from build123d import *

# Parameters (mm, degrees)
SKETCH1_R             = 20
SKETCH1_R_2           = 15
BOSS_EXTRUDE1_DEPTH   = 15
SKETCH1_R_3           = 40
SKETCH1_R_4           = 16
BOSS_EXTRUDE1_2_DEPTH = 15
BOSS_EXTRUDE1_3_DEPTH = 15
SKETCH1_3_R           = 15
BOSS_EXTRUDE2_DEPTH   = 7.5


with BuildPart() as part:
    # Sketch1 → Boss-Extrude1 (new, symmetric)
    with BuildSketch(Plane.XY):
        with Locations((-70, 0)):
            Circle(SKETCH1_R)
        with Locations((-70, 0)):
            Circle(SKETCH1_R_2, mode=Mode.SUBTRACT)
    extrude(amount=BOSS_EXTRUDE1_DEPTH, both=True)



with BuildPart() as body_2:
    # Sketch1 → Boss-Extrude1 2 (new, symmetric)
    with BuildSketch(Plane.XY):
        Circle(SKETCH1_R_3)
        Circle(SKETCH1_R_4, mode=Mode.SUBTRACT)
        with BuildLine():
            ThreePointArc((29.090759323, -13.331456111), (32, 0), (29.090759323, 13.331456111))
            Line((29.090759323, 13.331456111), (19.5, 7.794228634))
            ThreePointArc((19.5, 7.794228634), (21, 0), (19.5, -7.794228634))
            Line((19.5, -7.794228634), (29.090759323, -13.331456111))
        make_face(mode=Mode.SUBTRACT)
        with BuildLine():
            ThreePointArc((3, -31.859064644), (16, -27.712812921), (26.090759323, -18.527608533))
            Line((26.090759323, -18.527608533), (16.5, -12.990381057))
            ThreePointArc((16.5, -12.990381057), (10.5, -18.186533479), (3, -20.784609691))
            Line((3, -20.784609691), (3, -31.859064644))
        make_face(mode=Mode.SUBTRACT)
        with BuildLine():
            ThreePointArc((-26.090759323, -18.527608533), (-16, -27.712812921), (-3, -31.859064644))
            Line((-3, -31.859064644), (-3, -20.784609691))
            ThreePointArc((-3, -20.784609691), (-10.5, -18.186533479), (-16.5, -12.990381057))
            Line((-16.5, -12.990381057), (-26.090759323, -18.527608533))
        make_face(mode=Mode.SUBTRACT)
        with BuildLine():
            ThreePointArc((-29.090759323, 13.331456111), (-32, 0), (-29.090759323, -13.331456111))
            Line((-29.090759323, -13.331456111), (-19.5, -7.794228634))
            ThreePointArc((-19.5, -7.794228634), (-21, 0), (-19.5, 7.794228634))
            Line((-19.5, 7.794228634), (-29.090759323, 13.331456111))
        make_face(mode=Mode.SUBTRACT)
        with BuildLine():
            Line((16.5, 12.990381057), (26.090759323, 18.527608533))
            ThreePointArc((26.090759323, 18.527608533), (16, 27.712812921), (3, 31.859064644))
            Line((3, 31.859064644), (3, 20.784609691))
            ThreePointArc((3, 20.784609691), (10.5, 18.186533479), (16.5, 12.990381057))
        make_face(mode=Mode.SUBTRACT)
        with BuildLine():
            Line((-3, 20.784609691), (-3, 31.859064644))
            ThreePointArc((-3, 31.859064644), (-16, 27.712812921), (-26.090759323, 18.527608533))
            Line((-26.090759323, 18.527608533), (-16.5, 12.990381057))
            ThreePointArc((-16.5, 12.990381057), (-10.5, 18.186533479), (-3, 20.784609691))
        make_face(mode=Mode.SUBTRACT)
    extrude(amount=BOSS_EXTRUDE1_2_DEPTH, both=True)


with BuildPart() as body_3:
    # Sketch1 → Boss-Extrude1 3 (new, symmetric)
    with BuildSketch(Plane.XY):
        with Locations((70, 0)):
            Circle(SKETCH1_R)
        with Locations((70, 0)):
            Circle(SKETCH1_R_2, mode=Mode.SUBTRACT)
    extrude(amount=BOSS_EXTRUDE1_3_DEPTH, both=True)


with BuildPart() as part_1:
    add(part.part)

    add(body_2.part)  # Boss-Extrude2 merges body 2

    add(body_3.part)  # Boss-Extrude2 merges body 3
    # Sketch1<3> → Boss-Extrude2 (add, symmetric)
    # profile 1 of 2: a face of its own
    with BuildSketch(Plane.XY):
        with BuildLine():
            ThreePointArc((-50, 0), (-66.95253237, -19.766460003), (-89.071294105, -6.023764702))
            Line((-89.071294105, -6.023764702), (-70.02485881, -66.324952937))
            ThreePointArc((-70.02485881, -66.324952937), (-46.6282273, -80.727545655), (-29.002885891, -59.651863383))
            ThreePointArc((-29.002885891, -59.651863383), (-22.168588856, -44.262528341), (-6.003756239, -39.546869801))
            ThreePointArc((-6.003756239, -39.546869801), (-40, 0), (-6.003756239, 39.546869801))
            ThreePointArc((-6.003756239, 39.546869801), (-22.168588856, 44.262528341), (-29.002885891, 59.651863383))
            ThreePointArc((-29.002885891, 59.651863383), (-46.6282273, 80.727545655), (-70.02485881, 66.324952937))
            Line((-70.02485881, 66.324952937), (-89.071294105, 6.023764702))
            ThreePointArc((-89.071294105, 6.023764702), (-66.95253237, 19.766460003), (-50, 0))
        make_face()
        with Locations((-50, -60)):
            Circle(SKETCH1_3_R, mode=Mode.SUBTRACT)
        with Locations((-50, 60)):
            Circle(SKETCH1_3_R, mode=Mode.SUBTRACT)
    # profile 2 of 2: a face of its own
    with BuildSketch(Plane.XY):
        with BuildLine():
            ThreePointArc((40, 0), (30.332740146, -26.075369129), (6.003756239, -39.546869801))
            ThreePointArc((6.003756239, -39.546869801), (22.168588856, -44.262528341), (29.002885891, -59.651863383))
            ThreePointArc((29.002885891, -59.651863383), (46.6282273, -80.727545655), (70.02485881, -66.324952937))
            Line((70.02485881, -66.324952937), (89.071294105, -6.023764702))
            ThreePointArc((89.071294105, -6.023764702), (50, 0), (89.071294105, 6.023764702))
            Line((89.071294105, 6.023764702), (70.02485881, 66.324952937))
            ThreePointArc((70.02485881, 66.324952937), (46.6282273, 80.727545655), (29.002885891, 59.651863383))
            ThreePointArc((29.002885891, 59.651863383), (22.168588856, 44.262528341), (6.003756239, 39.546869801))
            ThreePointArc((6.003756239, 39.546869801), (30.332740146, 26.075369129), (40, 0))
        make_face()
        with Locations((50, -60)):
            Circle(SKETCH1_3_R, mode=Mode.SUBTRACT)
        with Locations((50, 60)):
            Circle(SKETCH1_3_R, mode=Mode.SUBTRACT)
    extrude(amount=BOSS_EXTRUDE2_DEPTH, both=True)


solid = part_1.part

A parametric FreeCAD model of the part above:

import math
import FreeCAD as App
import Part
import Sketcher

V = App.Vector
Q = App.Units.Quantity

doc = App.newDocument("Part")
body = doc.addObject("PartDesign::Body", "Body")

# Sketch on XY plane
sketch1 = body.newObject("Sketcher::SketchObject", "Sketch")
sketch1.AttachmentSupport = (doc.getObject("XY_Plane"), [""])
sketch1.MapMode = "FlatFace"
sketch1.addGeometry([
    Part.Circle(V(-70, 0, 0), V(0, 0, 1), 20),
    Part.Circle(V(-70, 0, 0), V(0, 0, 1), 15),
], False)
sketch1.addConstraint([
    Sketcher.Constraint("Coincident", 1, 3, 0, 3),
    Sketcher.Constraint("PointOnObject", 0, 3, -1),
    Sketcher.Constraint("Diameter", 0, 40.0),
    Sketcher.Constraint("Diameter", 1, 30.0),
    Sketcher.Constraint("DistanceX", 0, 3, -1, 1, 70.0),
])
pad1 = body.newObject("PartDesign::Pad", "Pad")
pad1.Profile = sketch1
pad1.Length = 30
pad1.Midplane = True
body2 = doc.addObject("PartDesign::Body", "Body001")

# Sketch on XY plane
sketch2 = body2.newObject("Sketcher::SketchObject", "Sketch001")
sketch2.AttachmentSupport = (doc.getObject("XY_Plane001"), [""])
sketch2.MapMode = "FlatFace"
sketch2.addGeometry([
    Part.Circle(V(0, 0, 0), V(0, 0, 1), 40),  # 0
    Part.ArcOfCircle(Part.Circle(V(0, 0, 0), V(0, 0, 1), 32), math.radians(-144.620621), math.radians(-95.379379)),  # 1
    Part.LineSegment(V(-26.090759, -18.527609, 0), V(-16.5, -12.990381, 0)),  # 2
    Part.ArcOfCircle(Part.Circle(V(0, 0, 0), V(0, 0, 1), 21), math.radians(-141.786789), math.radians(-98.213211)),  # 3
    Part.LineSegment(V(-3, -20.78461, 0), V(-3, -31.859065, 0)),  # 4
    Part.ArcOfCircle(Part.Circle(V(0, 0, 0), V(0, 0, 1), 32), math.radians(-84.620621), math.radians(-35.379379)),  # 5
    Part.LineSegment(V(3, -31.859065, 0), V(3, -20.78461, 0)),  # 6
    Part.ArcOfCircle(Part.Circle(V(0, 0, 0), V(0, 0, 1), 21), math.radians(-81.786789), math.radians(-38.213211)),  # 7
    Part.LineSegment(V(16.5, -12.990381, 0), V(26.090759, -18.527609, 0)),  # 8
    Part.ArcOfCircle(Part.Circle(V(0, 0, 0), V(0, 0, 1), 32), math.radians(155.379379), math.radians(204.620621)),  # 9
    Part.LineSegment(V(-29.090759, 13.331456, 0), V(-19.5, 7.794229, 0)),  # 10
    Part.ArcOfCircle(Part.Circle(V(0, 0, 0), V(0, 0, 1), 21), math.radians(158.213211), math.radians(201.786789)),  # 11
    Part.LineSegment(V(-19.5, -7.794229, 0), V(-29.090759, -13.331456, 0)),  # 12
    Part.LineSegment(V(-3, 31.859065, 0), V(-3, 20.78461, 0)),  # 13
    Part.ArcOfCircle(Part.Circle(V(0, 0, 0), V(0, 0, 1), 21), math.radians(98.213211), math.radians(141.786789)),  # 14
    Part.LineSegment(V(-16.5, 12.990381, 0), V(-26.090759, 18.527609, 0)),  # 15
    Part.ArcOfCircle(Part.Circle(V(0, 0, 0), V(0, 0, 1), 32), math.radians(95.379379), math.radians(144.620621)),  # 16
    Part.Circle(V(0, 0, 0), V(0, 0, 1), 16),  # 17
    Part.ArcOfCircle(Part.Circle(V(0, 0, 0), V(0, 0, 1), 32), math.radians(-24.620621), math.radians(24.620621)),  # 18
    Part.LineSegment(V(29.090759, -13.331456, 0), V(19.5, -7.794229, 0)),  # 19
    Part.ArcOfCircle(Part.Circle(V(0, 0, 0), V(0, 0, 1), 21), math.radians(-21.786789), math.radians(21.786789)),  # 20
    Part.LineSegment(V(19.5, 7.794229, 0), V(29.090759, 13.331456, 0)),  # 21
    Part.LineSegment(V(26.090759, 18.527609, 0), V(16.5, 12.990381, 0)),  # 22
    Part.ArcOfCircle(Part.Circle(V(0, 0, 0), V(0, 0, 1), 21), math.radians(38.213211), math.radians(81.786789)),  # 23
    Part.LineSegment(V(3, 20.78461, 0), V(3, 31.859065, 0)),  # 24
    Part.ArcOfCircle(Part.Circle(V(0, 0, 0), V(0, 0, 1), 32), math.radians(35.379379), math.radians(84.620621)),  # 25
], False)
sketch2.addConstraint([
    Sketcher.Constraint("Coincident", 1, 1, 2, 1),
    Sketcher.Constraint("Coincident", 2, 2, 3, 1),
    Sketcher.Constraint("Coincident", 3, 2, 4, 1),
    Sketcher.Constraint("Coincident", 4, 2, 1, 2),
    Sketcher.Constraint("Coincident", 5, 1, 6, 1),
    Sketcher.Constraint("Coincident", 6, 2, 7, 1),
    Sketcher.Constraint("Coincident", 7, 2, 8, 1),
    Sketcher.Constraint("Coincident", 8, 2, 5, 2),
    Sketcher.Constraint("Coincident", 9, 1, 10, 1),
    Sketcher.Constraint("Coincident", 10, 2, 11, 1),
    Sketcher.Constraint("Coincident", 11, 2, 12, 1),
    Sketcher.Constraint("Coincident", 12, 2, 9, 2),
    Sketcher.Constraint("Coincident", 13, 2, 14, 1),
    Sketcher.Constraint("Coincident", 14, 2, 15, 1),
    Sketcher.Constraint("Coincident", 15, 2, 16, 2),
    Sketcher.Constraint("Coincident", 16, 1, 13, 1),
    Sketcher.Constraint("Coincident", 18, 1, 19, 1),
    Sketcher.Constraint("Coincident", 19, 2, 20, 1),
    Sketcher.Constraint("Coincident", 20, 2, 21, 1),
    Sketcher.Constraint("Coincident", 21, 2, 18, 2),
    Sketcher.Constraint("Coincident", 22, 2, 23, 1),
    Sketcher.Constraint("Coincident", 23, 2, 24, 1),
    Sketcher.Constraint("Coincident", 24, 2, 25, 2),
    Sketcher.Constraint("Coincident", 25, 1, 22, 1),
    Sketcher.Constraint("Vertical", 4),
    Sketcher.Constraint("Vertical", 6),
    Sketcher.Constraint("Vertical", 13),
    Sketcher.Constraint("Vertical", 24),
    Sketcher.Constraint("Coincident", 0, 3, -1, 1),
    Sketcher.Constraint("Coincident", 1, 3, -1, 1),
    Sketcher.Constraint("Coincident", 3, 3, -1, 1),
    Sketcher.Constraint("Coincident", 5, 3, -1, 1),
    Sketcher.Constraint("Coincident", 7, 3, -1, 1),
    Sketcher.Constraint("Coincident", 9, 3, -1, 1),
    Sketcher.Constraint("Coincident", 11, 3, -1, 1),
    Sketcher.Constraint("Coincident", 14, 3, -1, 1),
    Sketcher.Constraint("Coincident", 16, 3, -1, 1),
    Sketcher.Constraint("Coincident", 17, 3, -1, 1),
    Sketcher.Constraint("Coincident", 18, 3, -1, 1),
    Sketcher.Constraint("Coincident", 20, 3, -1, 1),
    Sketcher.Constraint("Coincident", 23, 3, -1, 1),
    Sketcher.Constraint("Coincident", 25, 3, -1, 1),
    Sketcher.Constraint("Equal", 1, 5),
    Sketcher.Constraint("Equal", 3, 7),
    Sketcher.Constraint("Equal", 5, 9),
    Sketcher.Constraint("Equal", 7, 11),
    Sketcher.Constraint("Equal", 11, 14),
    Sketcher.Constraint("Equal", 9, 16),
    Sketcher.Constraint("Equal", 16, 18),
    Sketcher.Constraint("Equal", 14, 20),
    Sketcher.Constraint("Equal", 20, 23),
    Sketcher.Constraint("Equal", 18, 25),
    Sketcher.Constraint("Parallel", 8, 10),
    Sketcher.Constraint("Parallel", 2, 12),
    Sketcher.Constraint("Parallel", 10, 15),
    Sketcher.Constraint("Parallel", 15, 19),
    Sketcher.Constraint("Parallel", 12, 21),
    Sketcher.Constraint("Parallel", 21, 22),
    Sketcher.Constraint("Horizontal", 4, 2, 5, 1),
    Sketcher.Constraint("Horizontal", 2, 2, 7, 2),
    Sketcher.Constraint("Horizontal", 1, 1, 8, 2),
    Sketcher.Constraint("Horizontal", 12, 2, 18, 1),
    Sketcher.Constraint("Horizontal", 10, 2, 20, 2),
    Sketcher.Constraint("Horizontal", 14, 2, 22, 2),
    Sketcher.Constraint("Horizontal", 13, 2, 23, 2),
    Sketcher.Constraint("Vertical", 10, 2, 11, 2),
    Sketcher.Constraint("Vertical", 4, 2, 13, 2),
    Sketcher.Constraint("Vertical", 2, 2, 14, 2),
    Sketcher.Constraint("Equal", 8, 10),
    Sketcher.Constraint("Diameter", 0, 80.0),
    Sketcher.Constraint("Diameter", 17, 32.0),
    Sketcher.Constraint("Radius", 1, 32.0),
    Sketcher.Constraint("Radius", 3, 21.0),
    Sketcher.Constraint("Angle", 2, Q("30 deg")),
    Sketcher.Constraint("DistanceX", 3, 2, -1, 1, 3.0),
    Sketcher.Constraint("DistanceX", 9, 1, 1, 1, 3.0),
])
pad2 = body2.newObject("PartDesign::Pad", "Pad001")
pad2.Profile = sketch2
pad2.Length = 30
pad2.Midplane = True
body3 = doc.addObject("PartDesign::Body", "Body002")

# Sketch on XY plane
sketch3 = body3.newObject("Sketcher::SketchObject", "Sketch002")
sketch3.AttachmentSupport = (doc.getObject("XY_Plane002"), [""])
sketch3.MapMode = "FlatFace"
sketch3.addGeometry([
    Part.Circle(V(70, 0, 0), V(0, 0, 1), 20),
    Part.Circle(V(70, 0, 0), V(0, 0, 1), 15),
], False)
sketch3.addConstraint([
    Sketcher.Constraint("Coincident", 1, 3, 0, 3),
    Sketcher.Constraint("PointOnObject", 0, 3, -1),
    Sketcher.Constraint("Diameter", 0, 40.0),
    Sketcher.Constraint("Diameter", 1, 30.0),
    Sketcher.Constraint("DistanceX", -1, 1, 0, 3, 70.0),
])
pad3 = body3.newObject("PartDesign::Pad", "Pad002")
pad3.Profile = sketch3
pad3.Length = 30
pad3.Midplane = True
body.AllowCompound = True
doc.recompute()

boolean = body.newObject("PartDesign::Boolean", "Boolean")
boolean.Type = "Fuse"
boolean.addObjects([body2])
doc.recompute()

boolean2 = body.newObject("PartDesign::Boolean", "Boolean001")
boolean2.Type = "Fuse"
boolean2.addObjects([body3])

# Sketch on XY plane
sketch4 = body.newObject("Sketcher::SketchObject", "Sketch003")
sketch4.AttachmentSupport = (doc.getObject("XY_Plane"), [""])
sketch4.MapMode = "FlatFace"
sketch4.addGeometry([
    Part.ArcOfCircle(Part.Circle(V(-70, 0, 0), V(0, 0, 1), 20), math.radians(-162.471015), math.radians(0)),  # 0
    Part.LineSegment(V(-89.071294, -6.023765, 0), V(-70.024859, -66.324953, 0)),  # 1
    Part.ArcOfCircle(Part.Circle(V(-50, -60, 0), V(0, 0, 1), 21), math.radians(-162.471015), math.radians(0.949889)),  # 2
    Part.ArcOfCircle(Part.Circle(V(-9.005634, -59.320305, 0), V(0, 0, 1), 20), math.radians(81.367631), math.radians(180.949889)),  # 3
    Part.ArcOfCircle(Part.Circle(V(0, 0, 0), V(0, 0, 1), 40), math.radians(98.632369), math.radians(261.367631)),  # 4
    Part.ArcOfCircle(Part.Circle(V(-9.005634, 59.320305, 0), V(0, 0, 1), 20), math.radians(179.050111), math.radians(278.632369)),  # 5
    Part.ArcOfCircle(Part.Circle(V(-50, 60, 0), V(0, 0, 1), 21), math.radians(-0.949889), math.radians(162.471015)),  # 6
    Part.LineSegment(V(-70.024859, 66.324953, 0), V(-89.071294, 6.023765, 0)),  # 7
    Part.ArcOfCircle(Part.Circle(V(-70, 0, 0), V(0, 0, 1), 20), math.radians(0), math.radians(162.471015)),  # 8
    Part.Circle(V(-50, -60, 0), V(0, 0, 1), 15),  # 9
    Part.Circle(V(-50, 60, 0), V(0, 0, 1), 15),  # 10
    Part.ArcOfCircle(Part.Circle(V(0, 0, 0), V(0, 0, 1), 40), math.radians(-81.367631), math.radians(0)),  # 11
    Part.ArcOfCircle(Part.Circle(V(9.005634, -59.320305, 0), V(0, 0, 1), 20), math.radians(-0.949889), math.radians(98.632369)),  # 12
    Part.ArcOfCircle(Part.Circle(V(50, -60, 0), V(0, 0, 1), 21), math.radians(179.050111), math.radians(342.471015)),  # 13
    Part.LineSegment(V(70.024859, -66.324953, 0), V(89.071294, -6.023765, 0)),  # 14
    Part.ArcOfCircle(Part.Circle(V(70, 0, 0), V(0, 0, 1), 20), math.radians(17.528985), math.radians(342.471015)),  # 15
    Part.LineSegment(V(89.071294, 6.023765, 0), V(70.024859, 66.324953, 0)),  # 16
    Part.ArcOfCircle(Part.Circle(V(50, 60, 0), V(0, 0, 1), 21), math.radians(17.528985), math.radians(180.949889)),  # 17
    Part.ArcOfCircle(Part.Circle(V(9.005634, 59.320305, 0), V(0, 0, 1), 20), math.radians(-98.632369), math.radians(0.949889)),  # 18
    Part.ArcOfCircle(Part.Circle(V(0, 0, 0), V(0, 0, 1), 40), math.radians(0), math.radians(81.367631)),  # 19
    Part.Circle(V(50, -60, 0), V(0, 0, 1), 15),  # 20
    Part.Circle(V(50, 60, 0), V(0, 0, 1), 15),  # 21
], False)
sketch4.addConstraint([
    Sketcher.Constraint("Tangent", 0, 1, 1, 1),
    Sketcher.Constraint("Tangent", 1, 2, 2, 1),
    Sketcher.Constraint("Tangent", 2, 2, 3, 2),
    Sketcher.Constraint("Tangent", 3, 1, 4, 2),
    Sketcher.Constraint("Tangent", 4, 1, 5, 2),
    Sketcher.Constraint("Tangent", 5, 1, 6, 1),
    Sketcher.Constraint("Tangent", 6, 2, 7, 1),
    Sketcher.Constraint("Tangent", 7, 2, 8, 2),
    Sketcher.Constraint("Tangent", 8, 1, 0, 2),
    Sketcher.Constraint("Tangent", 11, 1, 12, 2),
    Sketcher.Constraint("Tangent", 12, 1, 13, 1),
    Sketcher.Constraint("Tangent", 13, 2, 14, 1),
    Sketcher.Constraint("Tangent", 14, 2, 15, 2),
    Sketcher.Constraint("Tangent", 15, 1, 16, 1),
    Sketcher.Constraint("Tangent", 16, 2, 17, 1),
    Sketcher.Constraint("Tangent", 17, 2, 18, 2),
    Sketcher.Constraint("Tangent", 18, 1, 19, 2),
    Sketcher.Constraint("Tangent", 19, 1, 11, 2),
    Sketcher.Constraint("Coincident", 4, 3, -1, 1),
    Sketcher.Constraint("Coincident", 11, 3, -1, 1),
    Sketcher.Constraint("Coincident", 9, 3, 2, 3),
    Sketcher.Constraint("Coincident", 10, 3, 6, 3),
    Sketcher.Constraint("Coincident", 20, 3, 13, 3),
    Sketcher.Constraint("Coincident", 21, 3, 17, 3),
    Sketcher.Constraint("Equal", 0, 3),
    Sketcher.Constraint("Equal", 3, 5),
    Sketcher.Constraint("Equal", 2, 6),
    Sketcher.Constraint("Equal", 5, 8),
    Sketcher.Constraint("Equal", 9, 10),
    Sketcher.Constraint("Equal", 4, 11),
    Sketcher.Constraint("Equal", 8, 12),
    Sketcher.Constraint("Equal", 6, 13),
    Sketcher.Constraint("Equal", 12, 15),
    Sketcher.Constraint("Equal", 13, 17),
    Sketcher.Constraint("Equal", 15, 18),
    Sketcher.Constraint("Equal", 11, 19),
    Sketcher.Constraint("Equal", 10, 20),
    Sketcher.Constraint("Equal", 20, 21),
    Sketcher.Constraint("Symmetric", 6, 3, 13, 3, -1, 1),
    Sketcher.Constraint("Symmetric", 0, 3, 15, 3, -1, 1),
    Sketcher.Constraint("Symmetric", 2, 3, 17, 3, -1, 1),
    Sketcher.Constraint("Symmetric", 2, 3, 13, 3, -2),
    Sketcher.Constraint("PointOnObject", 0, 3, -1),
    Sketcher.Constraint("PointOnObject", 8, 1, -1),
    Sketcher.Constraint("PointOnObject", 19, 1, -1),
    Sketcher.Constraint("Vertical", 10, 3, 8, 1),
    Sketcher.Constraint("Diameter", 9, 30.0),
    Sketcher.Constraint("Radius", 0, 20.0),
    Sketcher.Constraint("Radius", 2, 21.0),
    Sketcher.Constraint("Radius", 4, 40.0),
    Sketcher.Constraint("DistanceX", 0, 3, -1, 1, 70.0),
    Sketcher.Constraint("DistanceY", 2, 3, -1, 1, 60.0),
])
pad4 = body.newObject("PartDesign::Pad", "Pad003")
pad4.Profile = sketch4
pad4.Length = 15
pad4.Midplane = True

doc.recompute()
